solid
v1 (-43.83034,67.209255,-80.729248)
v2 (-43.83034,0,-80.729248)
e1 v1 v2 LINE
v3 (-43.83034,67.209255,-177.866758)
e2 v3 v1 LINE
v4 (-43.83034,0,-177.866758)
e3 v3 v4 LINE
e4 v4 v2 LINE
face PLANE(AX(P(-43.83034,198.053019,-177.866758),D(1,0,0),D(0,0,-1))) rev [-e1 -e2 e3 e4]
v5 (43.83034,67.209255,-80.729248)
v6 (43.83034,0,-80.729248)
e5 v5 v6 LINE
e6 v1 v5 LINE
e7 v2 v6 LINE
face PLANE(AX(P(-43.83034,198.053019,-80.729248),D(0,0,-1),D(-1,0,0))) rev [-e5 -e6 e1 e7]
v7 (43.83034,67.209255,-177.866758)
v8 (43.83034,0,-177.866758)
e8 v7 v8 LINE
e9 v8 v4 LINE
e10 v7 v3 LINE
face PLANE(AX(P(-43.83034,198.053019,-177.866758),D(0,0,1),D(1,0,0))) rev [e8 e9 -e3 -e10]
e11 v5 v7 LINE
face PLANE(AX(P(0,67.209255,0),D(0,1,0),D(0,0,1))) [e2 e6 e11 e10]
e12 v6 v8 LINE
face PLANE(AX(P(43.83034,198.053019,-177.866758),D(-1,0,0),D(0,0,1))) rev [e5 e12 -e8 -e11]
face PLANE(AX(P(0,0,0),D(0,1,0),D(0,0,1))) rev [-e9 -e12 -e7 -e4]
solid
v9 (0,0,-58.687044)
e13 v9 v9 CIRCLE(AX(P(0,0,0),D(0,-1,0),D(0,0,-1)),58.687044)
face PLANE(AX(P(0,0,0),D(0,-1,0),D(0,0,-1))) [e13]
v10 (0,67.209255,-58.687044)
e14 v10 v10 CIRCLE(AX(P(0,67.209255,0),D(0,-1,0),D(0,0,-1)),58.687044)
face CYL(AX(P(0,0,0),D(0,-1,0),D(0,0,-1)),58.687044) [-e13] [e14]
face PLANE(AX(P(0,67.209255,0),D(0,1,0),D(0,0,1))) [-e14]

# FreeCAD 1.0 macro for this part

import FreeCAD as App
import Part
import Sketcher
from FreeCAD import Vector
Q = App.Units.Quantity

doc = App.newDocument("Part")
body = doc.addObject("PartDesign::Body", "Body")

# Sketch on XY plane
sketch1 = doc.addObject("Sketcher::SketchObject", "Sketch")
body.addObject(sketch1)
sketch1.AttachmentSupport = (doc.XY_Plane, [""])
sketch1.MapMode = "FlatFace"
sketch1.addGeometry(Part.LineSegment(Vector(0, 67, 0), Vector(0, 0, 0)), False)
sketch1.addGeometry(Part.LineSegment(Vector(0, 0, 0), Vector(59, 0, 0)), False)
sketch1.addGeometry(Part.LineSegment(Vector(59, 0, 0), Vector(59, 67, 0)), False)
sketch1.addGeometry(Part.LineSegment(Vector(59, 67, 0), Vector(0, 67, 0)), False)
sketch1.addConstraint(Sketcher.Constraint("Coincident", 0, 2, 1, 1))
sketch1.addConstraint(Sketcher.Constraint("Coincident", 1, 2, 2, 1))
sketch1.addConstraint(Sketcher.Constraint("Coincident", 2, 2, 3, 1))
sketch1.addConstraint(Sketcher.Constraint("Coincident", 3, 2, 0, 1))
sketch1.addConstraint(Sketcher.Constraint("Vertical", 0))
sketch1.addConstraint(Sketcher.Constraint("Horizontal", 1))
sketch1.addConstraint(Sketcher.Constraint("Vertical", 2))
sketch1.addConstraint(Sketcher.Constraint("Horizontal", 3))
sketch1.addConstraint(Sketcher.Constraint("Coincident", 0, 2, -1, 1))
sketch1.addConstraint(Sketcher.Constraint("DistanceX", 1, 1, 1, 2, Q("58.687044 mm")))
sketch1.addConstraint(Sketcher.Constraint("DistanceY", 0, 2, 0, 1, Q("67.209255 mm")))
revolution = doc.addObject("PartDesign::Revolution", "Revolution")
body.addObject(revolution)
revolution.Profile = sketch1
revolution.ReferenceAxis = (sketch1, ["V_Axis"])
revolution.Angle = 360
body2 = doc.addObject("PartDesign::Body", "Body001")

# Sketch on XZ plane
sketch2 = doc.addObject("Sketcher::SketchObject", "Sketch001")
body2.addObject(sketch2)
sketch2.AttachmentSupport = (doc.getObject("XZ_Plane001"), [""])
sketch2.MapMode = "FlatFace"
sketch2.addGeometry(Part.LineSegment(Vector(-44, -178, 0), Vector(-44, -81, 0)), False)
sketch2.addGeometry(Part.LineSegment(Vector(-44, -81, 0), Vector(44, -81, 0)), False)
sketch2.addGeometry(Part.LineSegment(Vector(44, -81, 0), Vector(44, -178, 0)), False)
sketch2.addGeometry(Part.LineSegment(Vector(44, -178, 0), Vector(-44, -178, 0)), False)
sketch2.addConstraint(Sketcher.Constraint("Coincident", 0, 2, 1, 1))
sketch2.addConstraint(Sketcher.Constraint("Coincident", 1, 2, 2, 1))
sketch2.addConstraint(Sketcher.Constraint("Coincident", 2, 2, 3, 1))
sketch2.addConstraint(Sketcher.Constraint("Coincident", 3, 2, 0, 1))
sketch2.addConstraint(Sketcher.Constraint("Vertical", 0))
sketch2.addConstraint(Sketcher.Constraint("Horizontal", 1))
sketch2.addConstraint(Sketcher.Constraint("Vertical", 2))
sketch2.addConstraint(Sketcher.Constraint("Horizontal", 3))
sketch2.addConstraint(Sketcher.Constraint("DistanceX", 1, 1, 1, 2, Q("87.660679 mm")))
sketch2.addConstraint(Sketcher.Constraint("DistanceY", 0, 1, 0, 2, Q("97.13751 mm")))
sketch2.addConstraint(Sketcher.Constraint("DistanceX", 0, 2, -1, 1, Q("43.83034 mm")))
sketch2.addConstraint(Sketcher.Constraint("DistanceY", 0, 2, -1, 1, Q("80.729248 mm")))
pad1 = doc.addObject("PartDesign::Pad", "Pad")
body2.addObject(pad1)
pad1.Profile = sketch2
pad1.Length = 67.209255
pad1.Reversed = True

doc.recompute()
